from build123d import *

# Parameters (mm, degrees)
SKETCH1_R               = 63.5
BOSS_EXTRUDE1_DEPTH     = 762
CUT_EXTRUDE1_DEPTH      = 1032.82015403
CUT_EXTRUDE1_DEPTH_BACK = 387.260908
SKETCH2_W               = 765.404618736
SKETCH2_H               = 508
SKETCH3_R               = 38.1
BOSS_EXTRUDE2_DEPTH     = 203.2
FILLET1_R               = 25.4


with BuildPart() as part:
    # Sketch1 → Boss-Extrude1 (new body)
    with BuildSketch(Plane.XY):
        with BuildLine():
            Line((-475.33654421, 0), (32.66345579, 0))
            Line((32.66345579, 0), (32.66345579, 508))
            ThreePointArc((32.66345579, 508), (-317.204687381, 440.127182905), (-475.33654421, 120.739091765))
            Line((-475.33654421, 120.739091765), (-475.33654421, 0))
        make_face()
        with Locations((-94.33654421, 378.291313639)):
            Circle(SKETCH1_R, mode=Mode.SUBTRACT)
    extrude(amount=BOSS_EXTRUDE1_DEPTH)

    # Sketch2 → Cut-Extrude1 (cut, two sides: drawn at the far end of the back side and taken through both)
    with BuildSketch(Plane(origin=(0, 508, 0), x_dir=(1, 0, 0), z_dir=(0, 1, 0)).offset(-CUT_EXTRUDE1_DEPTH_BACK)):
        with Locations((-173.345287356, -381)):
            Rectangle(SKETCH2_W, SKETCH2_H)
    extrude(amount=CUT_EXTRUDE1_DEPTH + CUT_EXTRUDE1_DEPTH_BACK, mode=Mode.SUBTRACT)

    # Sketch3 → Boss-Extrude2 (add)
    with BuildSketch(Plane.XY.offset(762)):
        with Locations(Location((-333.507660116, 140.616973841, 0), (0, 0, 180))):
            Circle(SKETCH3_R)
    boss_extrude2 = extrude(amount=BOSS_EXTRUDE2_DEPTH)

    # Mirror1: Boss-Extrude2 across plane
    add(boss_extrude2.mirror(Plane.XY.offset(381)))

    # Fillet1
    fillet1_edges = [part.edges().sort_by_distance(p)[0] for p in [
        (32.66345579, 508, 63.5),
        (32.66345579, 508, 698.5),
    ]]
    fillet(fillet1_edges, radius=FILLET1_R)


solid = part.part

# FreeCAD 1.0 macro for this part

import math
import FreeCAD as App
import Part
import Sketcher
from FreeCAD import Vector
Q = App.Units.Quantity


def edges_at(feature, points):
    """Names of the edges that pass closest to the given points."""
    edges = feature.Shape.Edges
    near = lambda p: min(range(len(edges)), key=lambda i: edges[i].distToShape(Part.Vertex(*p))[0])
    return sorted({f"Edge{near(p) + 1}" for p in points})

doc = App.newDocument("Part")
params = doc.addObject("Spreadsheet::Sheet", "Params")
for row, (alias, value) in enumerate([
    ("sketch1_diameter", "5 in"),
    ("sketch1_width", "20 in"),
    ("pad1_length", "30 in"),
    ("sketch2_height", "20 in"),
    ("pocket1_length", "1032.820154 mm"),
    ("pocket1_length2", "387.260908 mm"),
    ("sketch3_diameter", "3 in"),
    ("pad2_length", "8 in"),
    ("fillet_radius", "1 in"),
], start=1):
    params.set(f"A{row}", alias)
    params.set(f"B{row}", "=" + value)
    params.setAlias(f"B{row}", alias)

body = doc.addObject("PartDesign::Body", "Body")

# Sketch on XY plane
sketch1 = doc.addObject("Sketcher::SketchObject", "Sketch")
body.addObject(sketch1)
sketch1.AttachmentSupport = (doc.XY_Plane, [""])
sketch1.MapMode = "FlatFace"
sketch1.addGeometry(Part.LineSegment(Vector(-475, 0, 0), Vector(33, 0, 0)), False)
sketch1.addGeometry(Part.LineSegment(Vector(33, 0, 0), Vector(33, 508, 0)), False)
sketch1.addGeometry(Part.ArcOfCircle(Part.Circle(Vector(-74, 121, 0), Vector(0, 0, 1), 402), math.radians(75), math.radians(180)), False)
sketch1.addGeometry(Part.LineSegment(Vector(-475, 121, 0), Vector(-475, 0, 0)), False)
sketch1.addGeometry(Part.Circle(Vector(-94, 378, 0), Vector(0, 0, 1), 64), False)
sketch1.addConstraint(Sketcher.Constraint("Coincident", 0, 2, 1, 1))
sketch1.addConstraint(Sketcher.Constraint("Coincident", 1, 2, 2, 1))
sketch1.addConstraint(Sketcher.Constraint("Tangent", 2, 2, 3, 1))
sketch1.addConstraint(Sketcher.Constraint("Coincident", 3, 2, 0, 1))
sketch1.addConstraint(Sketcher.Constraint("Horizontal", 0))
sketch1.addConstraint(Sketcher.Constraint("Vertical", 1))
sketch1.addConstraint(Sketcher.Constraint("Vertical", 3))
sketch1.addConstraint(Sketcher.Constraint("PointOnObject", 0, 2, -1))
sketch1.addConstraint(Sketcher.Constraint("Equal", 0, 1))
sketch1.addConstraint(Sketcher.Constraint("Diameter", 4, Q("5 in")))
sketch1.addConstraint(Sketcher.Constraint("DistanceX", 0, 1, 0, 2, Q("20 in")))
sketch1.addConstraint(Sketcher.Constraint("DistanceX", 4, 3, 0, 2, Q("5 in")))
sketch1.addConstraint(Sketcher.Constraint("Radius", 2, 401.609263))
sketch1.addConstraint(Sketcher.Constraint("DistanceX", 2, 3, -1, 1, 73.727281))
sketch1.addConstraint(Sketcher.Constraint("DistanceY", 2, 3, 4, 3, 257.552222))
sketch1.setExpression("Constraints[9]", "Params.sketch1_diameter")
sketch1.setExpression("Constraints[10]", "Params.sketch1_width")
pad1 = doc.addObject("PartDesign::Pad", "Pad")
body.addObject(pad1)
pad1.Profile = sketch1
pad1.setExpression("Length", "Params.pad1_length")

# Sketch on XZ plane
sketch2 = doc.addObject("Sketcher::SketchObject", "Sketch001")
body.addObject(sketch2)
sketch2.AttachmentSupport = (doc.XZ_Plane, [""])
sketch2.MapMode = "FlatFace"
sketch2.AttachmentOffset = App.Placement(Vector(0, 0, -20 * 25.4), App.Rotation())
sketch2.addGeometry(Part.LineSegment(Vector(-556, 127, 0), Vector(-556, 635, 0)), False)
sketch2.addGeometry(Part.LineSegment(Vector(-556, 635, 0), Vector(209, 635, 0)), False)
sketch2.addGeometry(Part.LineSegment(Vector(209, 635, 0), Vector(209, 127, 0)), False)
sketch2.addGeometry(Part.LineSegment(Vector(209, 127, 0), Vector(-556, 127, 0)), False)
sketch2.addConstraint(Sketcher.Constraint("Coincident", 0, 2, 1, 1))
sketch2.addConstraint(Sketcher.Constraint("Coincident", 1, 2, 2, 1))
sketch2.addConstraint(Sketcher.Constraint("Coincident", 2, 2, 3, 1))
sketch2.addConstraint(Sketcher.Constraint("Coincident", 3, 2, 0, 1))
sketch2.addConstraint(Sketcher.Constraint("Vertical", 0))
sketch2.addConstraint(Sketcher.Constraint("Horizontal", 1))
sketch2.addConstraint(Sketcher.Constraint("Vertical", 2))
sketch2.addConstraint(Sketcher.Constraint("Horizontal", 3))
sketch2.addConstraint(Sketcher.Constraint("DistanceY", 0, 1, 0, 2, Q("20 in")))
sketch2.addConstraint(Sketcher.Constraint("DistanceY", -1, 1, 0, 2, Q("25 in")))
sketch2.addConstraint(Sketcher.Constraint("DistanceX", 1, 1, 1, 2, 765.404619))
sketch2.addConstraint(Sketcher.Constraint("DistanceX", 0, 2, -1, 1, 556.047597))
sketch2.setExpression("Constraints[8]", "Params.sketch2_height")
pocket1 = doc.addObject("PartDesign::Pocket", "Pocket")
body.addObject(pocket1)
pocket1.Profile = sketch2
pocket1.Type = "TwoLengths"
pocket1.setExpression("Length", "Params.pocket1_length")
pocket1.setExpression("Length2", "Params.pocket1_length2")

# Sketch on XY plane
sketch3 = doc.addObject("Sketcher::SketchObject", "Sketch002")
body.addObject(sketch3)
sketch3.AttachmentSupport = (doc.XY_Plane, [""])
sketch3.MapMode = "FlatFace"
sketch3.AttachmentOffset = App.Placement(Vector(0, 0, 30 * 25.4), App.Rotation())
sketch3.addGeometry(Part.Circle(Vector(-334, 141, 0), Vector(0, 0, 1), 38), False)
sketch3.addConstraint(Sketcher.Constraint("Diameter", 0, Q("3 in")))
sketch3.addConstraint(Sketcher.Constraint("DistanceX", 0, 3, -1, 1, 333.50766))
sketch3.addConstraint(Sketcher.Constraint("DistanceY", -1, 1, 0, 3, 140.616974))
sketch3.setExpression("Constraints[0]", "Params.sketch3_diameter")
pad2 = doc.addObject("PartDesign::Pad", "Pad001")
body.addObject(pad2)
pad2.Profile = sketch3
pad2.setExpression("Length", "Params.pad2_length")
doc.recompute()

datumplane = doc.addObject("PartDesign::Plane", "DatumPlane")
body.addObject(datumplane)
datumplane.AttachmentSupport = (doc.XY_Plane, [""])
datumplane.MapMode = "FlatFace"
datumplane.AttachmentOffset = App.Placement(Vector(0, 0, 15 * 25.4), App.Rotation())
mirrored = doc.addObject("PartDesign::Mirrored", "Mirrored")
body.addObject(mirrored)
mirrored.Originals = [pad2]
mirrored.MirrorPlane = (datumplane, [""])
body.Tip = mirrored
doc.recompute()

fillet = doc.addObject("PartDesign::Fillet", "Fillet")
body.addObject(fillet)
fillet.Base = (mirrored, edges_at(mirrored, [(32.663, 508, 63.5), (32.663, 508, 698.5)]))
fillet.setExpression("Radius", "Params.fillet_radius")

doc.recompute()
